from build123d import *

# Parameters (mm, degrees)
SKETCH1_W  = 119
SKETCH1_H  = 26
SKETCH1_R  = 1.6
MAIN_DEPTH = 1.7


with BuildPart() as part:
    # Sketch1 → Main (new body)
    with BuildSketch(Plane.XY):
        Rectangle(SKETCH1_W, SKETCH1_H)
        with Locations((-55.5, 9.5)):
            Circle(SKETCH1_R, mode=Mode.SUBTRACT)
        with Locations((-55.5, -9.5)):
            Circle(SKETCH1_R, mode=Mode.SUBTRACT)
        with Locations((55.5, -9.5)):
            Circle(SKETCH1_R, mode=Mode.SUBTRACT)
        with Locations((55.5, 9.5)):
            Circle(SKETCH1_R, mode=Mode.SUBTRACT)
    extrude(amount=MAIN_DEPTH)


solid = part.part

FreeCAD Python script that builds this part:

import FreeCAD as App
import Part
import Sketcher
from FreeCAD import Vector
Q = App.Units.Quantity


def add_polygon(sketch, points):
    """Adds a closed chain of lines whose ends are joined by coincident constraints."""
    first, n = sketch.GeometryCount, len(points)
    for a, b in zip(points, points[1:] + points[:1]):
        sketch.addGeometry(Part.LineSegment(App.Vector(*a, 0), App.Vector(*b, 0)), False)
    for i in range(n):
        sketch.addConstraint(Sketcher.Constraint("Coincident", first + i, 2, first + (i + 1) % n, 1))

doc = App.newDocument("Part")
body = doc.addObject("PartDesign::Body", "Body")

# Sketch on XY plane
sketch1 = body.newObject("Sketcher::SketchObject", "Sketch")
sketch1.AttachmentSupport = (doc.getObject("XY_Plane"), [""])
sketch1.MapMode = "FlatFace"
add_polygon(sketch1, [(-59.5, 13), (-59.5, -13), (59.5, -13), (59.5, 13)])  # lines 0-3
sketch1.addGeometry(Part.Circle(Vector(-55.5, -9.5, 0), Vector(0, 0, 1), 1.6), False)  # 4
sketch1.addGeometry(Part.Circle(Vector(55.5, -9.5, 0), Vector(0, 0, 1), 1.6), False)  # 5
sketch1.addGeometry(Part.Circle(Vector(-55.5, 9.5, 0), Vector(0, 0, 1), 1.6), False)  # 6
sketch1.addGeometry(Part.Circle(Vector(55.5, 9.5, 0), Vector(0, 0, 1), 1.6), False)  # 7
sketch1.addConstraint([
    Sketcher.Constraint("Vertical", 0),
    Sketcher.Constraint("Horizontal", 1),
    Sketcher.Constraint("Vertical", 2),
    Sketcher.Constraint("Horizontal", 3),
    Sketcher.Constraint("Equal", 4, 5),
    Sketcher.Constraint("Equal", 5, 6),
    Sketcher.Constraint("Equal", 6, 7),
    Sketcher.Constraint("Symmetric", 5, 3, 6, 3, -1, 1),
    Sketcher.Constraint("Symmetric", 4, 3, 7, 3, -1, 1),
    Sketcher.Constraint("Symmetric", 0, 2, 2, 2, -1, 1),
    Sketcher.Constraint("Symmetric", 4, 3, 5, 3, -2),
    Sketcher.Constraint("Diameter", 4, Q("3.2 mm")),
    Sketcher.Constraint("DistanceX", 1, 1, 1, 2, Q("119 mm")),
    Sketcher.Constraint("DistanceY", 0, 2, 0, 1, Q("26 mm")),
    Sketcher.Constraint("DistanceX", 4, 3, 5, 3, Q("111 mm")),
    Sketcher.Constraint("DistanceY", 4, 3, 6, 3, Q("19 mm")),
])
pad1 = body.newObject("PartDesign::Pad", "Pad")
pad1.Profile = sketch1
pad1.Length = 1.7

doc.recompute()
